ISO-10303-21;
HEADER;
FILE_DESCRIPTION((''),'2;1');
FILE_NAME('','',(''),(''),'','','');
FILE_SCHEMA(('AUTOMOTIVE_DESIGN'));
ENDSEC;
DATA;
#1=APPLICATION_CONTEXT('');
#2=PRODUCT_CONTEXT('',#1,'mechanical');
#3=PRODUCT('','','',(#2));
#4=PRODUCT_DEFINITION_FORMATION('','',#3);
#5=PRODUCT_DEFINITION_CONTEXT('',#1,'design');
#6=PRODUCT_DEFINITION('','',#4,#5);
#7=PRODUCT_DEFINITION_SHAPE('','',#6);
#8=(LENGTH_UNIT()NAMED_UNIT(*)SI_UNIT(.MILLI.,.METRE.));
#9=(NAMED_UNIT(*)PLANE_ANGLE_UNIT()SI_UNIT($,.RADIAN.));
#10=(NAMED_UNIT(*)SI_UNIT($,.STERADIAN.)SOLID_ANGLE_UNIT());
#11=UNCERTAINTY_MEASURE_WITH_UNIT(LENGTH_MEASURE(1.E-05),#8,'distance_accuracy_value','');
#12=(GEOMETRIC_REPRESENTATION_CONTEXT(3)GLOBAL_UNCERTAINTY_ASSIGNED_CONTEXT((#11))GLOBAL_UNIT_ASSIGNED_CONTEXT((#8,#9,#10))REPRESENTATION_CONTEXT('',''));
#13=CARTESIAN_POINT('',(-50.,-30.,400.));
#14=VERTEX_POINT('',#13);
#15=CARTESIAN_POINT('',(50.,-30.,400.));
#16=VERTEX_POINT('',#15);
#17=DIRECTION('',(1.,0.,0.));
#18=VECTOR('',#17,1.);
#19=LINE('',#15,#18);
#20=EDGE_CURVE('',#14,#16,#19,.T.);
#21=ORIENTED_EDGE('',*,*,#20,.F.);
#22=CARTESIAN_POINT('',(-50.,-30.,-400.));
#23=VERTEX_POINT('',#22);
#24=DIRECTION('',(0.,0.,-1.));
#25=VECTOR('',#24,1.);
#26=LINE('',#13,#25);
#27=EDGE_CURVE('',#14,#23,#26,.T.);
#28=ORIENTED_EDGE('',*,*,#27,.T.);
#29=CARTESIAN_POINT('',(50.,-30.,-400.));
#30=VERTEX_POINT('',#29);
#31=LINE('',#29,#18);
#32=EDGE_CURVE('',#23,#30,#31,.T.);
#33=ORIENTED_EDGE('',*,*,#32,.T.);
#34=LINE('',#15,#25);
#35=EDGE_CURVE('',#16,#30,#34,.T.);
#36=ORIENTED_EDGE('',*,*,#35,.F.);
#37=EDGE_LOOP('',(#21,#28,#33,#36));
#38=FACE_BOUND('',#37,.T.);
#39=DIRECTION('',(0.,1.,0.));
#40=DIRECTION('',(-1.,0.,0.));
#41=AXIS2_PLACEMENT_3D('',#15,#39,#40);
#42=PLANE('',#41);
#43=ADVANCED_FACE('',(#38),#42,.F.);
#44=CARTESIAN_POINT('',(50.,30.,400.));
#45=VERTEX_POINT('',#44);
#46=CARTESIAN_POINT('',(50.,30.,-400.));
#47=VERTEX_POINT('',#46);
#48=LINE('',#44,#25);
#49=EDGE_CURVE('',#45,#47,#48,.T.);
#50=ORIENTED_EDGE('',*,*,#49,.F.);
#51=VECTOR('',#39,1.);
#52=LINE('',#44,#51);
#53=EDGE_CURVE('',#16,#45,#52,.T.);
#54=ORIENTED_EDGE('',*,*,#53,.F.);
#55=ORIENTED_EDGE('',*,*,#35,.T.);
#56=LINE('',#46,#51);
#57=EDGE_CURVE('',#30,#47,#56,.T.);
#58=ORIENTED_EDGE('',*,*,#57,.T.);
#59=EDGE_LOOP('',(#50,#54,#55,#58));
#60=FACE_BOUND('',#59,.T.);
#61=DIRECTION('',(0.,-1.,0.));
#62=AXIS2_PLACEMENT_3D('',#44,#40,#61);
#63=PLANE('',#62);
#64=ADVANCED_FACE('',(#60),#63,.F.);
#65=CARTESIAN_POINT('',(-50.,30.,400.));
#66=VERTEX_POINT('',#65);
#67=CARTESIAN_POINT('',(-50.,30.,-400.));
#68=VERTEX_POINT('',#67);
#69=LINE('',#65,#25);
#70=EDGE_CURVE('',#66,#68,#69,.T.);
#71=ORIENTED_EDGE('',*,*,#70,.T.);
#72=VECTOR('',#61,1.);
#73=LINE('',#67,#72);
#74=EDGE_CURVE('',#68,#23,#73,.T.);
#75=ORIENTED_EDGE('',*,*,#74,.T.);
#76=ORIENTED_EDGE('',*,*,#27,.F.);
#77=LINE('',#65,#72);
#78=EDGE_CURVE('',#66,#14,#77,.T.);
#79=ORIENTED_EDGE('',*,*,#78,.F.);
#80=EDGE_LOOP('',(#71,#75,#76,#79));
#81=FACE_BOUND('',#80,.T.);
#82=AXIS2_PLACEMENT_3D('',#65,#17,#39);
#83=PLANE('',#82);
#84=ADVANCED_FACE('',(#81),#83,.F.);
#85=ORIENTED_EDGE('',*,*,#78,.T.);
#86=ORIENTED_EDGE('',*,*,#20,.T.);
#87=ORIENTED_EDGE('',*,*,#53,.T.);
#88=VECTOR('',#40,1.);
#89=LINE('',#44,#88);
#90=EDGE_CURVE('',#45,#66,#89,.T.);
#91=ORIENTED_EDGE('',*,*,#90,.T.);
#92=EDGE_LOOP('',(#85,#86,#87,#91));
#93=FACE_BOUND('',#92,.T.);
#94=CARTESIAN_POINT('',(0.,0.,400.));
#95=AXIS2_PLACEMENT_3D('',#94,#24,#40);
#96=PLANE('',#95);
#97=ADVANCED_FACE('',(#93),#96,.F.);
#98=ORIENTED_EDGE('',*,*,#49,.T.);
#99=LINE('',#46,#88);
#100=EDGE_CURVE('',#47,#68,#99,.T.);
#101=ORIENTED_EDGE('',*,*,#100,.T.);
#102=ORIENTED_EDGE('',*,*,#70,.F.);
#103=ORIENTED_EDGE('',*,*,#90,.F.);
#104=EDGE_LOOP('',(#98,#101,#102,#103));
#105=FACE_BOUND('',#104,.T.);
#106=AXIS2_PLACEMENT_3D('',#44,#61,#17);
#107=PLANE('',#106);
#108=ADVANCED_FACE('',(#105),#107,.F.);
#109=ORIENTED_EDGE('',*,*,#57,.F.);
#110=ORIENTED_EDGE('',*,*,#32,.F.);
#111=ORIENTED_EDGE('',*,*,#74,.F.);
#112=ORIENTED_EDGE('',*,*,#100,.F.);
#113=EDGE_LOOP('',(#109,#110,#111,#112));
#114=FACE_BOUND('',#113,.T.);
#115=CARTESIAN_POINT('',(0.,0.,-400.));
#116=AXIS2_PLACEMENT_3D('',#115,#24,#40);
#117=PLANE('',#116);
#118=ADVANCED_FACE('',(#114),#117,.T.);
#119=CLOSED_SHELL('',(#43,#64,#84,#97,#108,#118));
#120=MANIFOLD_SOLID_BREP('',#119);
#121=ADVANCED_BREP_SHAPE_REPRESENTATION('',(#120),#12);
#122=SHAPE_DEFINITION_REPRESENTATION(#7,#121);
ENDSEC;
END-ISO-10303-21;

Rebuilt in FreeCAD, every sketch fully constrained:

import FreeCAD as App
import Part
import Sketcher
from FreeCAD import Vector
Q = App.Units.Quantity

doc = App.newDocument("Part")
body = doc.addObject("PartDesign::Body", "Body")

# Sketch on XY plane
sketch1 = body.newObject("Sketcher::SketchObject", "Sketch")
sketch1.AttachmentSupport = (doc.getObject("XY_Plane"), [""])
sketch1.MapMode = "FlatFace"
sketch1.addGeometry([
    Part.LineSegment(Vector(-50, 30, 0), Vector(-50, -30, 0)),
    Part.LineSegment(Vector(-50, -30, 0), Vector(50, -30, 0)),
    Part.LineSegment(Vector(50, -30, 0), Vector(50, 30, 0)),
    Part.LineSegment(Vector(50, 30, 0), Vector(-50, 30, 0)),
], False)
sketch1.addConstraint([
    Sketcher.Constraint("Coincident", 0, 2, 1, 1),
    Sketcher.Constraint("Coincident", 1, 2, 2, 1),
    Sketcher.Constraint("Coincident", 2, 2, 3, 1),
    Sketcher.Constraint("Coincident", 3, 2, 0, 1),
    Sketcher.Constraint("Vertical", 0),
    Sketcher.Constraint("Horizontal", 1),
    Sketcher.Constraint("Vertical", 2),
    Sketcher.Constraint("Horizontal", 3),
    Sketcher.Constraint("Symmetric", 0, 2, 2, 2, -1, 1),
    Sketcher.Constraint("DistanceX", 1, 1, 1, 2, Q("100 mm")),
    Sketcher.Constraint("DistanceY", 0, 2, 0, 1, Q("60 mm")),
])
pad1 = body.newObject("PartDesign::Pad", "Pad")
pad1.Profile = sketch1
pad1.Length = 800
pad1.Midplane = True

doc.recompute()
